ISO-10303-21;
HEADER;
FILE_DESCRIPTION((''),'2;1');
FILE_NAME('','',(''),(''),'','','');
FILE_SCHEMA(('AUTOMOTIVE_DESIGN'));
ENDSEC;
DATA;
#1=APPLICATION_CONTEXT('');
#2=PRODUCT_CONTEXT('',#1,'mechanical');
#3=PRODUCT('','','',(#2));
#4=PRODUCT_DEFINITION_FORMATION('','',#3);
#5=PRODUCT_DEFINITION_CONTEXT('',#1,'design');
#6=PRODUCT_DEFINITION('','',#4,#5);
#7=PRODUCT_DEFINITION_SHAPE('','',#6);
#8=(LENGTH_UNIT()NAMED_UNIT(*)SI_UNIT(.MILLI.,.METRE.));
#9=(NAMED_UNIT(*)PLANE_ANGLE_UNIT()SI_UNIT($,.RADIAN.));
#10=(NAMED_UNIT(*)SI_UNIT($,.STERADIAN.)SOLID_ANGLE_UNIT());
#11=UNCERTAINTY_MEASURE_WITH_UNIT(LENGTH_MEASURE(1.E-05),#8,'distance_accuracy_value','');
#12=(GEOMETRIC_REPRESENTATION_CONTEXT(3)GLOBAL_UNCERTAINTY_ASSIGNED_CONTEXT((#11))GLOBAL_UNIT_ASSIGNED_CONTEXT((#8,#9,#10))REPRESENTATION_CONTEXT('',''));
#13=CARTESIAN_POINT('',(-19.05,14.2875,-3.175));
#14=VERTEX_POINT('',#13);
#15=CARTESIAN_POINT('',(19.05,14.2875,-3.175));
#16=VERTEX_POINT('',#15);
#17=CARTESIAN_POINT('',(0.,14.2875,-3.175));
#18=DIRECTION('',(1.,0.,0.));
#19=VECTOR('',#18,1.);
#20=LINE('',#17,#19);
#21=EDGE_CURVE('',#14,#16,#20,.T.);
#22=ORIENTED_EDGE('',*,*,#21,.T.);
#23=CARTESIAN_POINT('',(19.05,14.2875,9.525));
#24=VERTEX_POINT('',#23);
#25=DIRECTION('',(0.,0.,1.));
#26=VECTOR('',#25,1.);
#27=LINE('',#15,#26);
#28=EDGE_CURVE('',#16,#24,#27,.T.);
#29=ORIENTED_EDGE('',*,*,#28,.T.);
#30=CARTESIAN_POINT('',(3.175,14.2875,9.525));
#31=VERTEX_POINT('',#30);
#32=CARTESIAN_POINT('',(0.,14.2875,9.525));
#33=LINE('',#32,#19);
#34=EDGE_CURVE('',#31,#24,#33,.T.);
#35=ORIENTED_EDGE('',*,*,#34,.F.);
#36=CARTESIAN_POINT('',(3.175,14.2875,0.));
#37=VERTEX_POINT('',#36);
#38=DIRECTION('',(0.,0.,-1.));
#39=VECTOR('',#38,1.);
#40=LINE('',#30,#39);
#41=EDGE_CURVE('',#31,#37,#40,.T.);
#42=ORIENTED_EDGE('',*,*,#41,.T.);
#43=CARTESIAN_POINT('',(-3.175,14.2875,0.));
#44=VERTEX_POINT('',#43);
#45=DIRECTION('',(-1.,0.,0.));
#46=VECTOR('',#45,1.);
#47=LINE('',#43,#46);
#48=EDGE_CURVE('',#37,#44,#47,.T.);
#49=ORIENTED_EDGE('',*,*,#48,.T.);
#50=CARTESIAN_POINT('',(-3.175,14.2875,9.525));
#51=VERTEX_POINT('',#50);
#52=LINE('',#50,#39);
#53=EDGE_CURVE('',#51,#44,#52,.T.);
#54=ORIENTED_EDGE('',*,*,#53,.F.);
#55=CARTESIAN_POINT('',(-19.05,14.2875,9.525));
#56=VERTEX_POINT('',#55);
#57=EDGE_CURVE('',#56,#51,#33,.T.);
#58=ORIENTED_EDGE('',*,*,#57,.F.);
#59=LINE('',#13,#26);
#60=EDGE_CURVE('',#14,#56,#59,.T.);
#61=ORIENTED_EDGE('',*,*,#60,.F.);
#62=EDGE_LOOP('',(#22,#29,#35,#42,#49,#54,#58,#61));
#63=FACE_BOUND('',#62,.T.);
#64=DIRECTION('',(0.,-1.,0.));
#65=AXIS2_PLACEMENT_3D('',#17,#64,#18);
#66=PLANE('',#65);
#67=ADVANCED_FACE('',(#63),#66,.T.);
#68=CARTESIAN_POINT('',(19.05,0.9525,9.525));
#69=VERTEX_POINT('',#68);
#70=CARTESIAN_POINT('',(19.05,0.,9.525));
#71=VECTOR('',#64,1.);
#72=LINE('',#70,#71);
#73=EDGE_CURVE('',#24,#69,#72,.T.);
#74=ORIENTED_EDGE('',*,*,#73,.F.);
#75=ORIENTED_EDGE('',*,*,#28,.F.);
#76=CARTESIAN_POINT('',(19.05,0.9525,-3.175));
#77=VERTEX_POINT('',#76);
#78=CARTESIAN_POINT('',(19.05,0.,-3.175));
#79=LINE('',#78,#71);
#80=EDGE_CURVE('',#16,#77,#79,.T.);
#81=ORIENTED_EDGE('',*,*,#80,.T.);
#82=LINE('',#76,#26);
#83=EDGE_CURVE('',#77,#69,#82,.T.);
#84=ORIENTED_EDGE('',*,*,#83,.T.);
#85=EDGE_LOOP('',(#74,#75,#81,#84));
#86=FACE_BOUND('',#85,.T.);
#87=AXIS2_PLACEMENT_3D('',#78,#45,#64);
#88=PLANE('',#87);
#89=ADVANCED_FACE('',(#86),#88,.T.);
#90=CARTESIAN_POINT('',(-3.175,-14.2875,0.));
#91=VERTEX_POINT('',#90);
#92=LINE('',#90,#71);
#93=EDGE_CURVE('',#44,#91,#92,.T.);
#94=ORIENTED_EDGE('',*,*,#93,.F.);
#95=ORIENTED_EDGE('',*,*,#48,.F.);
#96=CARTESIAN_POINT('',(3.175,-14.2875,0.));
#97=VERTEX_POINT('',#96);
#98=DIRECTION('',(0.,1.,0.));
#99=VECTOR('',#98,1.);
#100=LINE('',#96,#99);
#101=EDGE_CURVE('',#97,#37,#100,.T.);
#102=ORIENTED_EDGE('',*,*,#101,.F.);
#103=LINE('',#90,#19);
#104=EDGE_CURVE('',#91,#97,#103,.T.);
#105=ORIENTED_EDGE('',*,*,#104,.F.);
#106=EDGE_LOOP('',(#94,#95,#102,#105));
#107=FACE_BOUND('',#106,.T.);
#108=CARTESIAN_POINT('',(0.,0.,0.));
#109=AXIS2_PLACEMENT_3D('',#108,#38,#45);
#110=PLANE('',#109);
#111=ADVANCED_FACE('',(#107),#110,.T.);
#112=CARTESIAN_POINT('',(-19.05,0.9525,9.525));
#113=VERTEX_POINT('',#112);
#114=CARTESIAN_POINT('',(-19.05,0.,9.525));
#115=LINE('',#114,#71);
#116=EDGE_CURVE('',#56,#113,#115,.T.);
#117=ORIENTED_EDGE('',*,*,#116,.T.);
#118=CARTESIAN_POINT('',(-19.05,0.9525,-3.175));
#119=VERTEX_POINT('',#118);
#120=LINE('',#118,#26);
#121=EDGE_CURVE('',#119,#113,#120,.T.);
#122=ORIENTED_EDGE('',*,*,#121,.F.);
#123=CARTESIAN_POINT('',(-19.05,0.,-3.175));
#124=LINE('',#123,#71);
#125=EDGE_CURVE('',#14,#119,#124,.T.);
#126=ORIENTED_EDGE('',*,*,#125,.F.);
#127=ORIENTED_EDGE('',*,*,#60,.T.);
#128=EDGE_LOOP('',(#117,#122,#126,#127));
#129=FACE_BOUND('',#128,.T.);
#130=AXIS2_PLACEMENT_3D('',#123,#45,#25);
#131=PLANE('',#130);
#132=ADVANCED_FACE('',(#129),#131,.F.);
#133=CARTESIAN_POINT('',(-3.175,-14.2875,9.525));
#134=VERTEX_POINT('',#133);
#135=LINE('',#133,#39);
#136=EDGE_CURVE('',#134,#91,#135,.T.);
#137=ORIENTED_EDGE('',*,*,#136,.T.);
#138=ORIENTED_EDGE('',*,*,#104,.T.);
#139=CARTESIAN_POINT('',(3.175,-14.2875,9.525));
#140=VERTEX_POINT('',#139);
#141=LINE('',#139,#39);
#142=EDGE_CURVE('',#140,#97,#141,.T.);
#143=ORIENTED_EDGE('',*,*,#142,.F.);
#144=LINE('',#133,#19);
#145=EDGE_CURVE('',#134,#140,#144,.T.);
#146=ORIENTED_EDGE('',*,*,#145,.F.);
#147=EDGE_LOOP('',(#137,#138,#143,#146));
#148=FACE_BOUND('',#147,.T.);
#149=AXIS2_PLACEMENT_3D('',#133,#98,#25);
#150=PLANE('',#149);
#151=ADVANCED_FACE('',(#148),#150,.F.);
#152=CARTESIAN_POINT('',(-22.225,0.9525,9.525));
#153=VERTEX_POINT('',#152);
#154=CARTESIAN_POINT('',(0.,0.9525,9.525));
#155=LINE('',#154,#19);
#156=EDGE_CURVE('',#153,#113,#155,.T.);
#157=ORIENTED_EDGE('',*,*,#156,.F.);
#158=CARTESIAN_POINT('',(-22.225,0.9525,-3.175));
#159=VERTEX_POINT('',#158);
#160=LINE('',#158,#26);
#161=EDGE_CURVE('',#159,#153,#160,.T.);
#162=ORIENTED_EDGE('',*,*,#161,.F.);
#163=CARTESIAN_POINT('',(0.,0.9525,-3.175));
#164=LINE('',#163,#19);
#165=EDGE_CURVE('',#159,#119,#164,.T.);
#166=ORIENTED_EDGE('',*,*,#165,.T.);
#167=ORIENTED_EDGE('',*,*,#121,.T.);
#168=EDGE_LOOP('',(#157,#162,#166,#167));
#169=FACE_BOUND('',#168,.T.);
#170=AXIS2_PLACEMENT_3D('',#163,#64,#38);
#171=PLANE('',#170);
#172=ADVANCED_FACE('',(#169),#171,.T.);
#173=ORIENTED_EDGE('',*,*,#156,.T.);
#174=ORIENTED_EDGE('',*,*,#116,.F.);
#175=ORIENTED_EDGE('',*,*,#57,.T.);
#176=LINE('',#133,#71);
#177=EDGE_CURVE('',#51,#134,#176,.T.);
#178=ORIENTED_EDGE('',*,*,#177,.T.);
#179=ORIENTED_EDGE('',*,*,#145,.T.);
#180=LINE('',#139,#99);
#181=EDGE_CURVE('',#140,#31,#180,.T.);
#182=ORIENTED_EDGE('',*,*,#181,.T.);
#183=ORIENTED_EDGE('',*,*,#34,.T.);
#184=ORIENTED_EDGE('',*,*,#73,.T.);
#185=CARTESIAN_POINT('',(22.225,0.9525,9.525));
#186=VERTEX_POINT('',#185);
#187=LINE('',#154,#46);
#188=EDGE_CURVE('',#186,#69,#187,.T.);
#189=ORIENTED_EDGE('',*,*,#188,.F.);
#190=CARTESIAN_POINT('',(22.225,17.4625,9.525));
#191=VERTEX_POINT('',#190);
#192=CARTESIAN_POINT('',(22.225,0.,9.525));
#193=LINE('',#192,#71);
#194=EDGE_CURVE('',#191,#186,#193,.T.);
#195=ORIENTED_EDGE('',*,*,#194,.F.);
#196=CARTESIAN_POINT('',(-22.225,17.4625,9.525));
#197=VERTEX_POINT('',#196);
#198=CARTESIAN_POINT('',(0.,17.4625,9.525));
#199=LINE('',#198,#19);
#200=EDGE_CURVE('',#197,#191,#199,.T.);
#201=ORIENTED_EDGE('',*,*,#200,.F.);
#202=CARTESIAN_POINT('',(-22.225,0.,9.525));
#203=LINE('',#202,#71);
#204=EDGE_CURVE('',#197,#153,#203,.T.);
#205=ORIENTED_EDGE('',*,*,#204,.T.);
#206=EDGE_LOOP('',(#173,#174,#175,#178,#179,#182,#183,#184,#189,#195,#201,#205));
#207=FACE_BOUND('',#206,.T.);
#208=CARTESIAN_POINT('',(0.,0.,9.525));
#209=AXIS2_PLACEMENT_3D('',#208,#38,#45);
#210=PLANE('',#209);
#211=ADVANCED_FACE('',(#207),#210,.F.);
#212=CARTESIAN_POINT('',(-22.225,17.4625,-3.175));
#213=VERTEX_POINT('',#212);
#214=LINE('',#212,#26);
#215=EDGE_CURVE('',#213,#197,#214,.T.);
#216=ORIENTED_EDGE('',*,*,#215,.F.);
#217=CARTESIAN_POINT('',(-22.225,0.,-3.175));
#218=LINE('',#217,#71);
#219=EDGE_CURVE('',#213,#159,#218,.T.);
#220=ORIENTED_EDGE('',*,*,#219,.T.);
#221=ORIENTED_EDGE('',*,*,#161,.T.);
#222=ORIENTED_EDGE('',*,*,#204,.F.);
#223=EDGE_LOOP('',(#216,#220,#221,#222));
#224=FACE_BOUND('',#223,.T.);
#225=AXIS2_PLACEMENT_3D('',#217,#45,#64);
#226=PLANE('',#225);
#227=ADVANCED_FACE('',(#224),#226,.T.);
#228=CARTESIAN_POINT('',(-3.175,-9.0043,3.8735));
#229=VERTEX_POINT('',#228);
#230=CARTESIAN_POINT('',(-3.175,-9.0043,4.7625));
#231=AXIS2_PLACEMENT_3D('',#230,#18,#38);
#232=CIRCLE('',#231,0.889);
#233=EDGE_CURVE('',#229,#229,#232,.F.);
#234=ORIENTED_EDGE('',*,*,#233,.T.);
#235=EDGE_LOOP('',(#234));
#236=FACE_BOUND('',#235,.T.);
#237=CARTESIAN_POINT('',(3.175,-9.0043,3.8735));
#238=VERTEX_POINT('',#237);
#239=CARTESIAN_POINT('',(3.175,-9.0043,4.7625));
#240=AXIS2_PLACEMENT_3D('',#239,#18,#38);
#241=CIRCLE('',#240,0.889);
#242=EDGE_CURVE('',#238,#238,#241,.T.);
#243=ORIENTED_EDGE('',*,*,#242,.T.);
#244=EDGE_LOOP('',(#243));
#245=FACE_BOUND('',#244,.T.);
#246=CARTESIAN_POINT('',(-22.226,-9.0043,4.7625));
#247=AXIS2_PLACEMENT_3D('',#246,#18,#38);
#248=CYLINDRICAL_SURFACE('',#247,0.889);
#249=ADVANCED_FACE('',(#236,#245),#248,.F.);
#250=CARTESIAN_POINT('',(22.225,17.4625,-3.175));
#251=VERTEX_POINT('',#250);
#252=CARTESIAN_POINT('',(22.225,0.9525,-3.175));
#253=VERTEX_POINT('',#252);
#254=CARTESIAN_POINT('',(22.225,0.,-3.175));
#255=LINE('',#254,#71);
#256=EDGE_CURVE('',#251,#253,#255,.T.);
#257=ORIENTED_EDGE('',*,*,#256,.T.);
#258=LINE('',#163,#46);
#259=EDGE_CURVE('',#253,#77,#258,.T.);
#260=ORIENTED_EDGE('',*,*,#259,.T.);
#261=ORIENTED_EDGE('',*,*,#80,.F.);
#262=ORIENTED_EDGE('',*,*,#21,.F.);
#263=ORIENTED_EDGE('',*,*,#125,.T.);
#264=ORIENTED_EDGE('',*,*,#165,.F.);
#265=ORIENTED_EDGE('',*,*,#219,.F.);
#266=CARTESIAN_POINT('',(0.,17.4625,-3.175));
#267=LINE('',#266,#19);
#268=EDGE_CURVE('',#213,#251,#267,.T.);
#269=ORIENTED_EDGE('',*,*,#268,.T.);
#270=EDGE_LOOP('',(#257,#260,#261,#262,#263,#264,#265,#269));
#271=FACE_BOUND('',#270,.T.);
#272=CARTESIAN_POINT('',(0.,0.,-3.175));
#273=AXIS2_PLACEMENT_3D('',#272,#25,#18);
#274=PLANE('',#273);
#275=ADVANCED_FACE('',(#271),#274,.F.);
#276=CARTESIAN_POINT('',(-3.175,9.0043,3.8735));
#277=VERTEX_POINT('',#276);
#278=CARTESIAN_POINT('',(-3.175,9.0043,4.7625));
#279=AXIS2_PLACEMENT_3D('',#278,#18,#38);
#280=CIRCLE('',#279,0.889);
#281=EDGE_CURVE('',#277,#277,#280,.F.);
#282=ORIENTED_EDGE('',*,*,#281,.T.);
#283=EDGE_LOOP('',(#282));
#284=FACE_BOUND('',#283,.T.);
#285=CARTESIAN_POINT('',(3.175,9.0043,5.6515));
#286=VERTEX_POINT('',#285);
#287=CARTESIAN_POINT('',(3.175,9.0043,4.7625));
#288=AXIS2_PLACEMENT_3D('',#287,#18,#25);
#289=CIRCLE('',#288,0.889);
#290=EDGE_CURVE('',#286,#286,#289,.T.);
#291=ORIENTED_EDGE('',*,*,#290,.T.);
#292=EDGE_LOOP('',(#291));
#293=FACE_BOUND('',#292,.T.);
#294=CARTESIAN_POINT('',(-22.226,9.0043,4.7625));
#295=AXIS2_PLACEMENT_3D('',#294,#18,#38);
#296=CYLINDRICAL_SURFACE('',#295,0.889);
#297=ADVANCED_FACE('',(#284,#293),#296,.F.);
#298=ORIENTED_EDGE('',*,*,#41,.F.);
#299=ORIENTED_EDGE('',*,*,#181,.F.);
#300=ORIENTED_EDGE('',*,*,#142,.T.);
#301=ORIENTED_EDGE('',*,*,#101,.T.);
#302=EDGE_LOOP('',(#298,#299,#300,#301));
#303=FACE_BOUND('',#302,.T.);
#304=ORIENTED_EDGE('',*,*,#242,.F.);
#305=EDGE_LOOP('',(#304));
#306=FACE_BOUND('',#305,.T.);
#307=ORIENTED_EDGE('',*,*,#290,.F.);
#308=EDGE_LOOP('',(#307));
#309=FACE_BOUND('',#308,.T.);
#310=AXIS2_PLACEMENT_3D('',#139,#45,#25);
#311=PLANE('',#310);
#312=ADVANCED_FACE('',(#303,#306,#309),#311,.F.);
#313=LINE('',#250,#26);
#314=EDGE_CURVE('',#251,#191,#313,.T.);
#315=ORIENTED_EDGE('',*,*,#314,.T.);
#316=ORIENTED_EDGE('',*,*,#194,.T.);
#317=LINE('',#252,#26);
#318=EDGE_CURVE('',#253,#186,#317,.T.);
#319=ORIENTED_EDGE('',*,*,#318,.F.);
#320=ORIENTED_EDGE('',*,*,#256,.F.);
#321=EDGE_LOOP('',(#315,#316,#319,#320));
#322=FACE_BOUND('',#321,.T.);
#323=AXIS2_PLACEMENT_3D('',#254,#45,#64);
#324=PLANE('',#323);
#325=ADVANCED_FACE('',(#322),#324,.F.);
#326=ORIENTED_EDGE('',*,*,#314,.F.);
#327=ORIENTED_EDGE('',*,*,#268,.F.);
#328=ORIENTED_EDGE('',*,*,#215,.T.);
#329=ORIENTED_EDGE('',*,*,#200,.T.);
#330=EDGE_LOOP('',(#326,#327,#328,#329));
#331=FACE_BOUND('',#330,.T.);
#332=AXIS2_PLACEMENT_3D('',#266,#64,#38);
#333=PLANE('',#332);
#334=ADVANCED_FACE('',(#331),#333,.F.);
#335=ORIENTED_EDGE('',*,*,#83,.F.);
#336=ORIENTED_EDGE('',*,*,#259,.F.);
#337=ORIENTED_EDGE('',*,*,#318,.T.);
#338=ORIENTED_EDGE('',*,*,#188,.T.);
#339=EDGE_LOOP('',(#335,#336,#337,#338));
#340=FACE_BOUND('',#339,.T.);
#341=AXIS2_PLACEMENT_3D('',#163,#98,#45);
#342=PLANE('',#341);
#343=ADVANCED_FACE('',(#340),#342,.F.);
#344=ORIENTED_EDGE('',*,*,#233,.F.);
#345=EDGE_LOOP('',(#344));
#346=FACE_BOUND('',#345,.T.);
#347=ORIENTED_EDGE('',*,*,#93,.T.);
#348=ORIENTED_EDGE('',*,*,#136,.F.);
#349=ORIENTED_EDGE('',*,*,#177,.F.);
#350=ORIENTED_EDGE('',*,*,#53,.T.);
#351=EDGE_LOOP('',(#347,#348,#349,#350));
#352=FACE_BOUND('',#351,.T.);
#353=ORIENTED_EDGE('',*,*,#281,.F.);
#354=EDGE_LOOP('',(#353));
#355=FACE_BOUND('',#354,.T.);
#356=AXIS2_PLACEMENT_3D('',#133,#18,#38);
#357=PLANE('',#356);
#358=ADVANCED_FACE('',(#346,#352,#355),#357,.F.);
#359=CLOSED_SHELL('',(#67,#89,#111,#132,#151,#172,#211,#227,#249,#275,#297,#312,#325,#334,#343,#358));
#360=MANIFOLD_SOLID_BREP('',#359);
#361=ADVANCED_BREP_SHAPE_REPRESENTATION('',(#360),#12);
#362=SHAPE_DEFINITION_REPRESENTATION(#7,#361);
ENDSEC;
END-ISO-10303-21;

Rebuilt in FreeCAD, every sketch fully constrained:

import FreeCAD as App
import Part
import Sketcher
from FreeCAD import Vector
Q = App.Units.Quantity


def add_polygon(sketch, points):
    """Adds a closed chain of lines whose ends are joined by coincident constraints."""
    first, n = sketch.GeometryCount, len(points)
    for a, b in zip(points, points[1:] + points[:1]):
        sketch.addGeometry(Part.LineSegment(App.Vector(*a, 0), App.Vector(*b, 0)), False)
    for i in range(n):
        sketch.addConstraint(Sketcher.Constraint("Coincident", first + i, 2, first + (i + 1) % n, 1))

doc = App.newDocument("Part")
params = doc.addObject("Spreadsheet::Sheet", "Params")
for row, (alias, value) in enumerate([
    ("sketch1_width", "0.25 in"),
    ("sketch1_height", "1.125 in"),
    ("pad1_length", "0.375 in"),
    ("sketch2_width", "1.5 in"),
    ("sketch2_width2", "1.75 in"),
    ("sketch2_height", "0.65 in"),
    ("sketch2_height2", "0.525 in"),
    ("pad2_length", "0.5 in"),
    ("sketch3_diameter", "0.07 in"),
    ("sketch4_diameter", "0.07 in"),
], start=1):
    params.set(f"A{row}", alias)
    params.set(f"B{row}", "=" + value)
    params.setAlias(f"B{row}", alias)

body = doc.addObject("PartDesign::Body", "Body")

sketch1 = body.newObject("Sketcher::SketchObject", "Sketch")
sketch1.AttachmentSupport = (doc.getObject("XY_Plane"), [""])
sketch1.MapMode = "FlatFace"
add_polygon(sketch1, [(-3, 14), (-3, -14), (3, -14), (3, 14)])
sketch1.addConstraint(Sketcher.Constraint("Vertical", 0))
sketch1.addConstraint(Sketcher.Constraint("Horizontal", 1))
sketch1.addConstraint(Sketcher.Constraint("Vertical", 2))
sketch1.addConstraint(Sketcher.Constraint("Horizontal", 3))
sketch1.addConstraint(Sketcher.Constraint("Symmetric", 0, 2, 2, 2, -1, 1))
sketch1.addConstraint(Sketcher.Constraint("DistanceX", 1, 1, 1, 2, Q("0.25 in")))
sketch1.addConstraint(Sketcher.Constraint("DistanceY", 0, 2, 0, 1, Q("1.125 in")))
sketch1.setExpression("Constraints[9]", "Params.sketch1_width")
sketch1.setExpression("Constraints[10]", "Params.sketch1_height")
pad1 = body.newObject("PartDesign::Pad", "Pad")
pad1.Profile = sketch1
pad1.setExpression("Length", "Params.pad1_length")

sketch2 = body.newObject("Sketcher::SketchObject", "Sketch001")
sketch2.AttachmentSupport = (doc.getObject("XY_Plane"), [""])
sketch2.MapMode = "FlatFace"
sketch2.AttachmentOffset = App.Placement(Vector(0, 0, 0.375 * 25.4), App.Rotation())
add_polygon(sketch2, [(-22.2, 1), (-19.1, 1), (-19.1, 14.3), (19.1, 14.3), (19.1, 1), (22.2, 1), (22.2, 17.5), (-22.2, 17.5)])
sketch2.addConstraint(Sketcher.Constraint("Horizontal", 0))
sketch2.addConstraint(Sketcher.Constraint("Vertical", 1))
sketch2.addConstraint(Sketcher.Constraint("Horizontal", 2))
sketch2.addConstraint(Sketcher.Constraint("Vertical", 3))
sketch2.addConstraint(Sketcher.Constraint("Horizontal", 4))
sketch2.addConstraint(Sketcher.Constraint("Vertical", 5))
sketch2.addConstraint(Sketcher.Constraint("Horizontal", 6))
sketch2.addConstraint(Sketcher.Constraint("Vertical", 7))
sketch2.addConstraint(Sketcher.Constraint("Symmetric", 0, 2, 3, 2, -2))
sketch2.addConstraint(Sketcher.Constraint("Equal", 0, 4))
sketch2.addConstraint(Sketcher.Constraint("DistanceX", 2, 1, 2, 2, Q("1.5 in")))
sketch2.addConstraint(Sketcher.Constraint("DistanceX", 6, 2, 6, 1, Q("1.75 in")))
sketch2.addConstraint(Sketcher.Constraint("DistanceY", 5, 1, 5, 2, Q("0.65 in")))
sketch2.addConstraint(Sketcher.Constraint("DistanceY", 1, 1, 1, 2, Q("0.525 in")))
sketch2.addConstraint(Sketcher.Constraint("DistanceY", -1, 1, 1, 2, Q("0.5625 in")))
sketch2.setExpression("Constraints[18]", "Params.sketch2_width")
sketch2.setExpression("Constraints[19]", "Params.sketch2_width2")
sketch2.setExpression("Constraints[20]", "Params.sketch2_height")
sketch2.setExpression("Constraints[21]", "Params.sketch2_height2")
pad2 = body.newObject("PartDesign::Pad", "Pad001")
pad2.Profile = sketch2
pad2.setExpression("Length", "Params.pad2_length")
pad2.Reversed = True

sketch3 = body.newObject("Sketcher::SketchObject", "Sketch002")
sketch3.AttachmentSupport = (doc.getObject("YZ_Plane"), [""])
sketch3.MapMode = "FlatFace"
sketch3.AttachmentOffset = App.Placement(Vector(0, 0, 0.125 * 25.4), App.Rotation())
sketch3.addGeometry(Part.Circle(Vector(-9, 4.8, 0), Vector(0, 0, 1), 0.9), False)
sketch3.addConstraint(Sketcher.Constraint("Diameter", 0, Q("0.07 in")))
sketch3.addConstraint(Sketcher.Constraint("DistanceY", -1, 1, 0, 3, Q("0.1875 in")))
sketch3.addConstraint(Sketcher.Constraint("DistanceX", 0, 3, -1, 1, Q("0.3545 in")))
sketch3.setExpression("Constraints[0]", "Params.sketch3_diameter")
pocket1 = body.newObject("PartDesign::Pocket", "Pocket")
pocket1.Profile = sketch3
pocket1.Type = "UpToFirst"

sketch4 = body.newObject("Sketcher::SketchObject", "Sketch003")
sketch4.AttachmentSupport = (doc.getObject("YZ_Plane"), [""])
sketch4.MapMode = "FlatFace"
sketch4.AttachmentOffset = App.Placement(Vector(0, 0, 0.125 * 25.4), App.Rotation())
sketch4.addGeometry(Part.Circle(Vector(9, 4.8, 0), Vector(0, 0, 1), 0.9), False)
sketch4.addConstraint(Sketcher.Constraint("Diameter", 0, Q("0.07 in")))
sketch4.addConstraint(Sketcher.Constraint("DistanceY", -1, 1, 0, 3, Q("0.1875 in")))
sketch4.addConstraint(Sketcher.Constraint("DistanceX", -1, 1, 0, 3, Q("0.3545 in")))
sketch4.setExpression("Constraints[0]", "Params.sketch4_diameter")
pocket2 = body.newObject("PartDesign::Pocket", "Pocket001")
pocket2.Profile = sketch4
pocket2.Type = "UpToFirst"

doc.recompute()
